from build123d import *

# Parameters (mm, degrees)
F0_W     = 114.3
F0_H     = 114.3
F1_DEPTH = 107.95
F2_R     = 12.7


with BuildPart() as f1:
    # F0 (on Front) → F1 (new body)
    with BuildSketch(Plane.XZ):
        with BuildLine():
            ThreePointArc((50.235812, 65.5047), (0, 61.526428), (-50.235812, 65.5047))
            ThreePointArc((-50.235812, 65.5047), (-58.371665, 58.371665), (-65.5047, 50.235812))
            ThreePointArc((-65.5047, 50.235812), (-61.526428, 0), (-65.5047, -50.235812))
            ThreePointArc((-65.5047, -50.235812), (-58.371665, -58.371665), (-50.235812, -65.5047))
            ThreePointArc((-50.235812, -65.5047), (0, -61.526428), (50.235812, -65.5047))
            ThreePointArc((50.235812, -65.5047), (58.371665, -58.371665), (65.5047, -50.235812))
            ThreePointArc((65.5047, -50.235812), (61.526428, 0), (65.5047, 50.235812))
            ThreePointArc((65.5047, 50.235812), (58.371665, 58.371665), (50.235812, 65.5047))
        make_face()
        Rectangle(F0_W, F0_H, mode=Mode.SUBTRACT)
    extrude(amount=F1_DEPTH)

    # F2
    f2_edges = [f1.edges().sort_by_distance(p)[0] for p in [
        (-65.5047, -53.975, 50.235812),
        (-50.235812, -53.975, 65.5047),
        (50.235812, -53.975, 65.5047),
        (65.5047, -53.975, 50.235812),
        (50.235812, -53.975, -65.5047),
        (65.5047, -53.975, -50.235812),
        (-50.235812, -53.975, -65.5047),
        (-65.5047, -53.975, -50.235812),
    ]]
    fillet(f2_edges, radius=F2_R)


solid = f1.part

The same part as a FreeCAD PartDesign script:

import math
import FreeCAD as App
import Part
import Sketcher
Q = App.Units.Quantity


def edges_at(feature, points):
    """Names of the edges that pass closest to the given points."""
    edges = feature.Shape.Edges
    near = lambda p: min(range(len(edges)), key=lambda i: edges[i].distToShape(Part.Vertex(*p))[0])
    return sorted({f"Edge{near(p) + 1}" for p in points})

doc = App.newDocument("Part")
body = doc.addObject("PartDesign::Body", "Body")

# Sketch on XZ plane
sketch1 = body.newObject("Sketcher::SketchObject", "Sketch")
sketch1.AttachmentSupport = (doc.getObject("XZ_Plane"), [""])
sketch1.MapMode = "FlatFace"
sketch1.addGeometry([
    Part.ArcOfCircle(Part.Circle(App.Vector(0, 380.693073, 0), App.Vector(0, 0, 1), 319.166645), math.radians(-99.05583), math.radians(-80.94417)),  # 0
    Part.ArcOfCircle(Part.Circle(App.Vector(-0.00001, 0.00001, 0), App.Vector(0, 0, 1), 82.549986), math.radians(127.484739), math.radians(142.515261)),  # 1
    Part.ArcOfCircle(Part.Circle(App.Vector(-380.693073, 0, 0), App.Vector(0, 0, 1), 319.166645), math.radians(-9.05583), math.radians(9.05583)),  # 2
    Part.ArcOfCircle(Part.Circle(App.Vector(-0.00001, -0.00001, 0), App.Vector(0, 0, 1), 82.549986), math.radians(-142.515261), math.radians(-127.484739)),  # 3
    Part.ArcOfCircle(Part.Circle(App.Vector(0, -380.693073, 0), App.Vector(0, 0, 1), 319.166645), math.radians(80.94417), math.radians(99.05583)),  # 4
    Part.ArcOfCircle(Part.Circle(App.Vector(0.00001, -0.00001, 0), App.Vector(0, 0, 1), 82.549986), math.radians(-52.515261), math.radians(-37.484739)),  # 5
    Part.ArcOfCircle(Part.Circle(App.Vector(380.693073, 0, 0), App.Vector(0, 0, 1), 319.166645), math.radians(170.94417), math.radians(189.05583)),  # 6
    Part.ArcOfCircle(Part.Circle(App.Vector(0.00001, 0.00001, 0), App.Vector(0, 0, 1), 82.549986), math.radians(37.484739), math.radians(52.515261)),  # 7
    Part.LineSegment(App.Vector(57.15, -57.15, 0), App.Vector(-57.15, -57.15, 0)),  # 8
    Part.LineSegment(App.Vector(-57.15, -57.15, 0), App.Vector(-57.15, 57.15, 0)),  # 9
    Part.LineSegment(App.Vector(-57.15, 57.15, 0), App.Vector(57.15, 57.15, 0)),  # 10
    Part.LineSegment(App.Vector(57.15, 57.15, 0), App.Vector(57.15, -57.15, 0)),  # 11
], False)
sketch1.addConstraint([
    Sketcher.Constraint("Coincident", 0, 1, 1, 1),
    Sketcher.Constraint("Coincident", 1, 2, 2, 2),
    Sketcher.Constraint("Coincident", 2, 1, 3, 1),
    Sketcher.Constraint("Coincident", 3, 2, 4, 2),
    Sketcher.Constraint("Coincident", 4, 1, 5, 1),
    Sketcher.Constraint("Coincident", 5, 2, 6, 2),
    Sketcher.Constraint("Coincident", 6, 1, 7, 1),
    Sketcher.Constraint("Coincident", 7, 2, 0, 2),
    Sketcher.Constraint("Coincident", 8, 2, 9, 1),
    Sketcher.Constraint("Coincident", 9, 2, 10, 1),
    Sketcher.Constraint("Coincident", 10, 2, 11, 1),
    Sketcher.Constraint("Coincident", 11, 2, 8, 1),
    Sketcher.Constraint("Horizontal", 8),
    Sketcher.Constraint("Vertical", 9),
    Sketcher.Constraint("Horizontal", 10),
    Sketcher.Constraint("Vertical", 11),
    Sketcher.Constraint("Equal", 0, 2),
    Sketcher.Constraint("Equal", 1, 3),
    Sketcher.Constraint("Equal", 2, 4),
    Sketcher.Constraint("Equal", 3, 5),
    Sketcher.Constraint("Equal", 4, 6),
    Sketcher.Constraint("Equal", 5, 7),
    Sketcher.Constraint("Symmetric", 0, 3, 4, 3, -1, 1),
    Sketcher.Constraint("Symmetric", 1, 3, 5, 3, -1, 1),
    Sketcher.Constraint("Symmetric", 2, 3, 6, 3, -1, 1),
    Sketcher.Constraint("Symmetric", 3, 3, 7, 3, -1, 1),
    Sketcher.Constraint("Symmetric", 8, 2, 10, 2, -1, 1),
    Sketcher.Constraint("Symmetric", 3, 3, 5, 3, -2),
    Sketcher.Constraint("PointOnObject", 0, 3, -2),
    Sketcher.Constraint("PointOnObject", 2, 3, -1),
    Sketcher.Constraint("Equal", 10, 9),
    Sketcher.Constraint("DistanceX", 8, 2, 8, 1, Q("4.5 in")),
    Sketcher.Constraint("Radius", 0, Q("319.166645 mm")),
    Sketcher.Constraint("Radius", 1, Q("82.549986 mm")),
    Sketcher.Constraint("DistanceY", -1, 1, 0, 1, Q("65.5047 mm")),
    Sketcher.Constraint("DistanceX", 1, 2, -1, 1, Q("65.5047 mm")),
    Sketcher.Constraint("DistanceX", 0, 1, 1, 3, Q("50.235802 mm")),
    Sketcher.Constraint("DistanceY", 1, 3, 1, 2, Q("50.235802 mm")),
])
pad1 = body.newObject("PartDesign::Pad", "Pad")
pad1.Profile = sketch1
pad1.Length = Q("4.25 in")
doc.recompute()

fillet = body.newObject("PartDesign::Fillet", "Fillet")
fillet.Base = (pad1, edges_at(pad1, [
    (-65.505, -53.975, 50.236),
    (-50.236, -53.975, 65.505),
    (50.236, -53.975, 65.505),
    (65.505, -53.975, 50.236),
    (50.236, -53.975, -65.505),
    (65.505, -53.975, -50.236),
    (-50.236, -53.975, -65.505),
    (-65.505, -53.975, -50.236),
]))
fillet.Radius = Q("0.5 in")

doc.recompute()
